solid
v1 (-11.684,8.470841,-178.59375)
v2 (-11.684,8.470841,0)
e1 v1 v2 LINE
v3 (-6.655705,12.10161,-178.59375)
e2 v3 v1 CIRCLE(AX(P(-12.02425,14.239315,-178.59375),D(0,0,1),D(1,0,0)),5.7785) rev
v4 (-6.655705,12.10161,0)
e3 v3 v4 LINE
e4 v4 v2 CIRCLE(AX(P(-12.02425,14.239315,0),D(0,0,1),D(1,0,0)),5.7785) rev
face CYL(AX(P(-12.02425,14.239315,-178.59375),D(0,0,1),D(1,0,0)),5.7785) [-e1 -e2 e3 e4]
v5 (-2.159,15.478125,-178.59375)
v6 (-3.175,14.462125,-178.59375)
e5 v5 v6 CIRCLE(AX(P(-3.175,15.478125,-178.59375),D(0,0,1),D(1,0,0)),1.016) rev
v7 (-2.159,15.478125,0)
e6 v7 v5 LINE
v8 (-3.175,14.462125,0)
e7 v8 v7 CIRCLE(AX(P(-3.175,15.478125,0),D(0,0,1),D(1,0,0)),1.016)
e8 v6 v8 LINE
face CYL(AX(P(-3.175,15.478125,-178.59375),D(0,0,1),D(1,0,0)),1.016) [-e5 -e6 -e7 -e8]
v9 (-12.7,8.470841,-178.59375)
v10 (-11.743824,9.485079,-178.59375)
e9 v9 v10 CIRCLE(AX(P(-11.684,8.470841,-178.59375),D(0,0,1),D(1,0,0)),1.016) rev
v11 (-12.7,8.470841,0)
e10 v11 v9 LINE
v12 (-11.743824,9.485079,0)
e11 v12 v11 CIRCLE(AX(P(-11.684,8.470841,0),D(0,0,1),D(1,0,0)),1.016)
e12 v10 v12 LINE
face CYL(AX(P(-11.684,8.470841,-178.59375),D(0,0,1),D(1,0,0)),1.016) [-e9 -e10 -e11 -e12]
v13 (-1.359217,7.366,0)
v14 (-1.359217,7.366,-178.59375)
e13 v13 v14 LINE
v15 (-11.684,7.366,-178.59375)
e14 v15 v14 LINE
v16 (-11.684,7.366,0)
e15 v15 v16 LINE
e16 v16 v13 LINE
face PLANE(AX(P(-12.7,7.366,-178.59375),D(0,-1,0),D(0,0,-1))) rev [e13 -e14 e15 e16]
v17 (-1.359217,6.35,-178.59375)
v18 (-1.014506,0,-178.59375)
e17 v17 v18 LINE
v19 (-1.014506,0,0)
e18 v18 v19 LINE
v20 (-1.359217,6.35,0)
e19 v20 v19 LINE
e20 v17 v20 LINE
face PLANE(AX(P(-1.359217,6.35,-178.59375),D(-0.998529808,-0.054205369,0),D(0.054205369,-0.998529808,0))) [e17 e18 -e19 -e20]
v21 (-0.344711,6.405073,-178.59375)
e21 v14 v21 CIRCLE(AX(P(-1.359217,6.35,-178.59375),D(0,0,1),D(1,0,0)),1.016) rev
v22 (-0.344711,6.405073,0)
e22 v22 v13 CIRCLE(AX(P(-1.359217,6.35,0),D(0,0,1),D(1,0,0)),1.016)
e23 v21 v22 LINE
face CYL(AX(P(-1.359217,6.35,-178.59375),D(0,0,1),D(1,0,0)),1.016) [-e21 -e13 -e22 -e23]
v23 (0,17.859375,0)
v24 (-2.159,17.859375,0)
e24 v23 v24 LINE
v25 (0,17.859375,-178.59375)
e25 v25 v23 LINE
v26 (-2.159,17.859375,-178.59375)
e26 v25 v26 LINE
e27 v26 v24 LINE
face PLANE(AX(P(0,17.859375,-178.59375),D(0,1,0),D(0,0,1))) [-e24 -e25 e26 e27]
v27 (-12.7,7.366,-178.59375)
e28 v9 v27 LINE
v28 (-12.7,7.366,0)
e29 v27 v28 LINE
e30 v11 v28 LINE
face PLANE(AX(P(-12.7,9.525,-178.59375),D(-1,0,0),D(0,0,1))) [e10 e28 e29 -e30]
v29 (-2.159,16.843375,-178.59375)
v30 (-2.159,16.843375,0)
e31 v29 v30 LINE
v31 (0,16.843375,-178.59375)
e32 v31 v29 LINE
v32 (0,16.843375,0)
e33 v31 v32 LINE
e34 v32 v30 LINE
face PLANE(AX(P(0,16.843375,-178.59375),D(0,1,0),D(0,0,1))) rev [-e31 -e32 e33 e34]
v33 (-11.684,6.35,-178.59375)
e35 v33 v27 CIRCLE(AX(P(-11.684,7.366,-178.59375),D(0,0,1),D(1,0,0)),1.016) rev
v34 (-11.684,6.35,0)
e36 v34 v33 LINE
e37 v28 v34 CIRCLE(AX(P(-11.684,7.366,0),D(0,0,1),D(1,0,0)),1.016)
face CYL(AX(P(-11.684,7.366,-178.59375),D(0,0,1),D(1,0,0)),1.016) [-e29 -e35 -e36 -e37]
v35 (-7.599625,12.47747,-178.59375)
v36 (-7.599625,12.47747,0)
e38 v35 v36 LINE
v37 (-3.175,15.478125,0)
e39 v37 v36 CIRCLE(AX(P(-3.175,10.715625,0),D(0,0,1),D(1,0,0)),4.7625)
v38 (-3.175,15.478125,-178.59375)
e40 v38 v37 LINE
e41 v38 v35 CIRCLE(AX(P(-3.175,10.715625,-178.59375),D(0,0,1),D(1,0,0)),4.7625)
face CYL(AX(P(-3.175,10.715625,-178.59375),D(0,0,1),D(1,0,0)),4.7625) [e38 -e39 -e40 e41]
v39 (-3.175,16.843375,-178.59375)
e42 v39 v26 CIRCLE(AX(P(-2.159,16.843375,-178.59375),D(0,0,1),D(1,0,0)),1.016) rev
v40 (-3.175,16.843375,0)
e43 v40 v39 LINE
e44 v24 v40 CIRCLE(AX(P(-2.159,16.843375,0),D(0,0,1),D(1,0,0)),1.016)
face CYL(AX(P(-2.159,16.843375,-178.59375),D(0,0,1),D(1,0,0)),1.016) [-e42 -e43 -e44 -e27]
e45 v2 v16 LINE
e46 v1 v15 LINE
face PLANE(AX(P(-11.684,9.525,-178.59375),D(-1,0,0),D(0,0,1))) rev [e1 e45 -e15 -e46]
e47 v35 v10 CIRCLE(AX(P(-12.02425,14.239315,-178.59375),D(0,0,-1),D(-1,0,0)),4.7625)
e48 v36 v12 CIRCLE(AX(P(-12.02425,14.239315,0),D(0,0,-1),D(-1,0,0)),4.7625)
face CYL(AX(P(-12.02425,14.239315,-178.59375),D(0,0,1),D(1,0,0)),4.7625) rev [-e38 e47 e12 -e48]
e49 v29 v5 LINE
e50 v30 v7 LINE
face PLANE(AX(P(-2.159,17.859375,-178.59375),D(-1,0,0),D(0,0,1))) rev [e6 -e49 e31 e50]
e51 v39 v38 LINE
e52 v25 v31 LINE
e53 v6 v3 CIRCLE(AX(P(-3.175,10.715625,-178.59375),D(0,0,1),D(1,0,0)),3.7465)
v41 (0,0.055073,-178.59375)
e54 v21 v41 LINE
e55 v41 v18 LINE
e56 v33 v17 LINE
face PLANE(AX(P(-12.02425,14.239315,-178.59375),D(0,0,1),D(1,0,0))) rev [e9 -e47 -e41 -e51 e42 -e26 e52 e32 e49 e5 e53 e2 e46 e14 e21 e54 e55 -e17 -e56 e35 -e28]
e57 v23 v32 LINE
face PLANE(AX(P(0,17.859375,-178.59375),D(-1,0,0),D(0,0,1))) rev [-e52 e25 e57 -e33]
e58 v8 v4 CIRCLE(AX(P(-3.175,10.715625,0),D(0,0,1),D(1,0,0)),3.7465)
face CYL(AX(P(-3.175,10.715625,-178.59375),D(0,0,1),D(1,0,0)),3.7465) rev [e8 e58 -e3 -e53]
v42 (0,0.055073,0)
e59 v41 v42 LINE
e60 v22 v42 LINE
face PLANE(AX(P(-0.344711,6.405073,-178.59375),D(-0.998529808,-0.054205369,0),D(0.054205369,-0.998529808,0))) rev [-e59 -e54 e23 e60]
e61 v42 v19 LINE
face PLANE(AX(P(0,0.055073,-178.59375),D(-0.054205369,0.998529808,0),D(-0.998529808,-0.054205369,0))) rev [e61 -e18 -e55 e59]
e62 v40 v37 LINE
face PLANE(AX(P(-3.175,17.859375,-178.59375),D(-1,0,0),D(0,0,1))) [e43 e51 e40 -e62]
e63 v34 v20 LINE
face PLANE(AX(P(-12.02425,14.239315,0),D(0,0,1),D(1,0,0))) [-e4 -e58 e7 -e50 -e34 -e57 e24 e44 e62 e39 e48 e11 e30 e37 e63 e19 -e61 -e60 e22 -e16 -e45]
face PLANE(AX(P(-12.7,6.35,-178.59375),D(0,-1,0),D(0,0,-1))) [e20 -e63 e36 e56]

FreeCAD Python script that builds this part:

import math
import FreeCAD as App
import Part
import Sketcher

V = App.Vector
Q = App.Units.Quantity


def edges_at(feature, points):
    """Names of the edges that pass closest to the given points."""
    edges = feature.Shape.Edges
    near = lambda p: min(range(len(edges)), key=lambda i: edges[i].distToShape(Part.Vertex(*p))[0])
    return sorted({f"Edge{near(p) + 1}" for p in points})

doc = App.newDocument("Part")
body = doc.addObject("PartDesign::Body", "Body")

# Sketch on XY plane
sketch1 = body.newObject("Sketcher::SketchObject", "Sketch")
sketch1.AttachmentSupport = (doc.getObject("XY_Plane"), [""])
sketch1.MapMode = "FlatFace"
sketch1.addGeometry([
    Part.LineSegment(V(0, 17.9, 0), V(-3.2, 17.9, 0)),  # 0
    Part.LineSegment(V(-3.2, 17.9, 0), V(-3.2, 15.5, 0)),  # 1
    Part.ArcOfCircle(Part.Circle(V(-3.2, 10.7, 0), V(0, 0, 1), 4.8), math.radians(90), math.radians(158)),  # 2
    Part.ArcOfCircle(Part.Circle(V(-12, 14.2, 0), V(0, 0, 1), 4.8), math.radians(-98), math.radians(-22)),  # 3
    Part.LineSegment(V(-12.7, 9.5, 0), V(-12.7, 6.3, 0)),  # 4
    Part.LineSegment(V(-12.7, 6.3, 0), V(-1.4, 6.3, 0)),  # 5
    Part.LineSegment(V(-1.4, 6.3, 0), V(-1, 0, 0)),  # 6
    Part.LineSegment(V(-1, 0, 0), V(0, 0.1, 0)),  # 7
    Part.LineSegment(V(0, 0.1, 0), V(-0.4, 7.4, 0)),  # 8
    Part.LineSegment(V(-0.4, 7.4, 0), V(-11.7, 7.4, 0)),  # 9
    Part.LineSegment(V(-11.7, 7.4, 0), V(-11.7, 8.5, 0)),  # 10
    Part.ArcOfCircle(Part.Circle(V(-12, 14.2, 0), V(0, 0, 1), 5.8), math.radians(-87), math.radians(-22)),  # 11
    Part.ArcOfCircle(Part.Circle(V(-3.2, 10.7, 0), V(0, 0, 1), 3.7), math.radians(74), math.radians(158)),  # 12
    Part.LineSegment(V(-2.2, 14.3, 0), V(-2.2, 16.8, 0)),  # 13
    Part.LineSegment(V(-2.2, 16.8, 0), V(0, 16.8, 0)),  # 14
    Part.LineSegment(V(0, 16.8, 0), V(0, 17.9, 0)),  # 15
], False)
sketch1.addConstraint([
    Sketcher.Constraint("Coincident", 0, 2, 1, 1),
    Sketcher.Constraint("Coincident", 1, 2, 2, 1),
    Sketcher.Constraint("Tangent", 2, 2, 3, 2),
    Sketcher.Constraint("Coincident", 3, 1, 4, 1),
    Sketcher.Constraint("Coincident", 4, 2, 5, 1),
    Sketcher.Constraint("Coincident", 5, 2, 6, 1),
    Sketcher.Constraint("Coincident", 6, 2, 7, 1),
    Sketcher.Constraint("Coincident", 7, 2, 8, 1),
    Sketcher.Constraint("Coincident", 8, 2, 9, 1),
    Sketcher.Constraint("Coincident", 9, 2, 10, 1),
    Sketcher.Constraint("Coincident", 10, 2, 11, 1),
    Sketcher.Constraint("Tangent", 11, 2, 12, 2),
    Sketcher.Constraint("Coincident", 12, 1, 13, 1),
    Sketcher.Constraint("Coincident", 13, 2, 14, 1),
    Sketcher.Constraint("Coincident", 14, 2, 15, 1),
    Sketcher.Constraint("Coincident", 15, 2, 0, 1),
    Sketcher.Constraint("Horizontal", 0),
    Sketcher.Constraint("Vertical", 1),
    Sketcher.Constraint("Vertical", 4),
    Sketcher.Constraint("Horizontal", 5),
    Sketcher.Constraint("Horizontal", 9),
    Sketcher.Constraint("Vertical", 10),
    Sketcher.Constraint("Vertical", 13),
    Sketcher.Constraint("Horizontal", 14),
    Sketcher.Constraint("Vertical", 15),
    Sketcher.Constraint("Coincident", 11, 3, 3, 3),
    Sketcher.Constraint("Coincident", 12, 3, 2, 3),
    Sketcher.Constraint("Equal", 2, 3),
    Sketcher.Constraint("PointOnObject", 6, 2, -1),
    Sketcher.Constraint("PointOnObject", 7, 2, -2),
    Sketcher.Constraint("PointOnObject", 14, 2, -2),
    Sketcher.Constraint("Perpendicular", 6, 7),
    Sketcher.Constraint("Perpendicular", 7, 8),
    Sketcher.Constraint("Vertical", 12, 3, 0, 2),
    Sketcher.Constraint("Equal", 0, 4),
    Sketcher.Constraint("Radius", 2, Q("0.1875 in")),
    Sketcher.Constraint("DistanceY", 15, 1, 15, 2, Q("0.04 in")),
    Sketcher.Constraint("DistanceX", 3, 1, -1, 1, Q("0.5 in")),
    Sketcher.Constraint("Radius", 11, Q("0.2275 in")),
    Sketcher.Constraint("Distance", 7, Q("0.04 in")),
    Sketcher.Constraint("DistanceX", 0, 2, 0, 1, Q("0.125 in")),
    Sketcher.Constraint("DistanceX", 14, 1, 14, 2, Q("0.085 in")),
    Sketcher.Constraint("DistanceY", 1, 2, 1, 1, Q("0.09375 in")),
    Sketcher.Constraint("DistanceY", -1, 1, 4, 2, Q("0.25 in")),
    Sketcher.Constraint("DistanceY", -1, 1, 8, 2, Q("0.29 in")),
    Sketcher.Constraint("DistanceX", 9, 2, -1, 1, Q("0.46 in")),
    Sketcher.Constraint("DistanceY", -1, 1, 2, 3, Q("0.421875 in")),
    Sketcher.Constraint("DistanceX", 8, 2, -1, 1, Q("0.015625 in")),
])
pad1 = body.newObject("PartDesign::Pad", "Pad")
pad1.Profile = sketch1
pad1.Length = Q("7.03125 in")
pad1.Reversed = True
doc.recompute()

fillet = body.newObject("PartDesign::Fillet", "Fillet")
fillet.Base = (pad1, edges_at(pad1, [
    (-12.7, 6.35, -89.297),
    (-12.7, 9.525, -89.297),
    (-3.175, 17.859, -89.297),
    (-2.159, 14.322, -89.297),
    (-0.397, 7.366, -89.297),
]))
fillet.Radius = Q("0.04 in")

doc.recompute()
